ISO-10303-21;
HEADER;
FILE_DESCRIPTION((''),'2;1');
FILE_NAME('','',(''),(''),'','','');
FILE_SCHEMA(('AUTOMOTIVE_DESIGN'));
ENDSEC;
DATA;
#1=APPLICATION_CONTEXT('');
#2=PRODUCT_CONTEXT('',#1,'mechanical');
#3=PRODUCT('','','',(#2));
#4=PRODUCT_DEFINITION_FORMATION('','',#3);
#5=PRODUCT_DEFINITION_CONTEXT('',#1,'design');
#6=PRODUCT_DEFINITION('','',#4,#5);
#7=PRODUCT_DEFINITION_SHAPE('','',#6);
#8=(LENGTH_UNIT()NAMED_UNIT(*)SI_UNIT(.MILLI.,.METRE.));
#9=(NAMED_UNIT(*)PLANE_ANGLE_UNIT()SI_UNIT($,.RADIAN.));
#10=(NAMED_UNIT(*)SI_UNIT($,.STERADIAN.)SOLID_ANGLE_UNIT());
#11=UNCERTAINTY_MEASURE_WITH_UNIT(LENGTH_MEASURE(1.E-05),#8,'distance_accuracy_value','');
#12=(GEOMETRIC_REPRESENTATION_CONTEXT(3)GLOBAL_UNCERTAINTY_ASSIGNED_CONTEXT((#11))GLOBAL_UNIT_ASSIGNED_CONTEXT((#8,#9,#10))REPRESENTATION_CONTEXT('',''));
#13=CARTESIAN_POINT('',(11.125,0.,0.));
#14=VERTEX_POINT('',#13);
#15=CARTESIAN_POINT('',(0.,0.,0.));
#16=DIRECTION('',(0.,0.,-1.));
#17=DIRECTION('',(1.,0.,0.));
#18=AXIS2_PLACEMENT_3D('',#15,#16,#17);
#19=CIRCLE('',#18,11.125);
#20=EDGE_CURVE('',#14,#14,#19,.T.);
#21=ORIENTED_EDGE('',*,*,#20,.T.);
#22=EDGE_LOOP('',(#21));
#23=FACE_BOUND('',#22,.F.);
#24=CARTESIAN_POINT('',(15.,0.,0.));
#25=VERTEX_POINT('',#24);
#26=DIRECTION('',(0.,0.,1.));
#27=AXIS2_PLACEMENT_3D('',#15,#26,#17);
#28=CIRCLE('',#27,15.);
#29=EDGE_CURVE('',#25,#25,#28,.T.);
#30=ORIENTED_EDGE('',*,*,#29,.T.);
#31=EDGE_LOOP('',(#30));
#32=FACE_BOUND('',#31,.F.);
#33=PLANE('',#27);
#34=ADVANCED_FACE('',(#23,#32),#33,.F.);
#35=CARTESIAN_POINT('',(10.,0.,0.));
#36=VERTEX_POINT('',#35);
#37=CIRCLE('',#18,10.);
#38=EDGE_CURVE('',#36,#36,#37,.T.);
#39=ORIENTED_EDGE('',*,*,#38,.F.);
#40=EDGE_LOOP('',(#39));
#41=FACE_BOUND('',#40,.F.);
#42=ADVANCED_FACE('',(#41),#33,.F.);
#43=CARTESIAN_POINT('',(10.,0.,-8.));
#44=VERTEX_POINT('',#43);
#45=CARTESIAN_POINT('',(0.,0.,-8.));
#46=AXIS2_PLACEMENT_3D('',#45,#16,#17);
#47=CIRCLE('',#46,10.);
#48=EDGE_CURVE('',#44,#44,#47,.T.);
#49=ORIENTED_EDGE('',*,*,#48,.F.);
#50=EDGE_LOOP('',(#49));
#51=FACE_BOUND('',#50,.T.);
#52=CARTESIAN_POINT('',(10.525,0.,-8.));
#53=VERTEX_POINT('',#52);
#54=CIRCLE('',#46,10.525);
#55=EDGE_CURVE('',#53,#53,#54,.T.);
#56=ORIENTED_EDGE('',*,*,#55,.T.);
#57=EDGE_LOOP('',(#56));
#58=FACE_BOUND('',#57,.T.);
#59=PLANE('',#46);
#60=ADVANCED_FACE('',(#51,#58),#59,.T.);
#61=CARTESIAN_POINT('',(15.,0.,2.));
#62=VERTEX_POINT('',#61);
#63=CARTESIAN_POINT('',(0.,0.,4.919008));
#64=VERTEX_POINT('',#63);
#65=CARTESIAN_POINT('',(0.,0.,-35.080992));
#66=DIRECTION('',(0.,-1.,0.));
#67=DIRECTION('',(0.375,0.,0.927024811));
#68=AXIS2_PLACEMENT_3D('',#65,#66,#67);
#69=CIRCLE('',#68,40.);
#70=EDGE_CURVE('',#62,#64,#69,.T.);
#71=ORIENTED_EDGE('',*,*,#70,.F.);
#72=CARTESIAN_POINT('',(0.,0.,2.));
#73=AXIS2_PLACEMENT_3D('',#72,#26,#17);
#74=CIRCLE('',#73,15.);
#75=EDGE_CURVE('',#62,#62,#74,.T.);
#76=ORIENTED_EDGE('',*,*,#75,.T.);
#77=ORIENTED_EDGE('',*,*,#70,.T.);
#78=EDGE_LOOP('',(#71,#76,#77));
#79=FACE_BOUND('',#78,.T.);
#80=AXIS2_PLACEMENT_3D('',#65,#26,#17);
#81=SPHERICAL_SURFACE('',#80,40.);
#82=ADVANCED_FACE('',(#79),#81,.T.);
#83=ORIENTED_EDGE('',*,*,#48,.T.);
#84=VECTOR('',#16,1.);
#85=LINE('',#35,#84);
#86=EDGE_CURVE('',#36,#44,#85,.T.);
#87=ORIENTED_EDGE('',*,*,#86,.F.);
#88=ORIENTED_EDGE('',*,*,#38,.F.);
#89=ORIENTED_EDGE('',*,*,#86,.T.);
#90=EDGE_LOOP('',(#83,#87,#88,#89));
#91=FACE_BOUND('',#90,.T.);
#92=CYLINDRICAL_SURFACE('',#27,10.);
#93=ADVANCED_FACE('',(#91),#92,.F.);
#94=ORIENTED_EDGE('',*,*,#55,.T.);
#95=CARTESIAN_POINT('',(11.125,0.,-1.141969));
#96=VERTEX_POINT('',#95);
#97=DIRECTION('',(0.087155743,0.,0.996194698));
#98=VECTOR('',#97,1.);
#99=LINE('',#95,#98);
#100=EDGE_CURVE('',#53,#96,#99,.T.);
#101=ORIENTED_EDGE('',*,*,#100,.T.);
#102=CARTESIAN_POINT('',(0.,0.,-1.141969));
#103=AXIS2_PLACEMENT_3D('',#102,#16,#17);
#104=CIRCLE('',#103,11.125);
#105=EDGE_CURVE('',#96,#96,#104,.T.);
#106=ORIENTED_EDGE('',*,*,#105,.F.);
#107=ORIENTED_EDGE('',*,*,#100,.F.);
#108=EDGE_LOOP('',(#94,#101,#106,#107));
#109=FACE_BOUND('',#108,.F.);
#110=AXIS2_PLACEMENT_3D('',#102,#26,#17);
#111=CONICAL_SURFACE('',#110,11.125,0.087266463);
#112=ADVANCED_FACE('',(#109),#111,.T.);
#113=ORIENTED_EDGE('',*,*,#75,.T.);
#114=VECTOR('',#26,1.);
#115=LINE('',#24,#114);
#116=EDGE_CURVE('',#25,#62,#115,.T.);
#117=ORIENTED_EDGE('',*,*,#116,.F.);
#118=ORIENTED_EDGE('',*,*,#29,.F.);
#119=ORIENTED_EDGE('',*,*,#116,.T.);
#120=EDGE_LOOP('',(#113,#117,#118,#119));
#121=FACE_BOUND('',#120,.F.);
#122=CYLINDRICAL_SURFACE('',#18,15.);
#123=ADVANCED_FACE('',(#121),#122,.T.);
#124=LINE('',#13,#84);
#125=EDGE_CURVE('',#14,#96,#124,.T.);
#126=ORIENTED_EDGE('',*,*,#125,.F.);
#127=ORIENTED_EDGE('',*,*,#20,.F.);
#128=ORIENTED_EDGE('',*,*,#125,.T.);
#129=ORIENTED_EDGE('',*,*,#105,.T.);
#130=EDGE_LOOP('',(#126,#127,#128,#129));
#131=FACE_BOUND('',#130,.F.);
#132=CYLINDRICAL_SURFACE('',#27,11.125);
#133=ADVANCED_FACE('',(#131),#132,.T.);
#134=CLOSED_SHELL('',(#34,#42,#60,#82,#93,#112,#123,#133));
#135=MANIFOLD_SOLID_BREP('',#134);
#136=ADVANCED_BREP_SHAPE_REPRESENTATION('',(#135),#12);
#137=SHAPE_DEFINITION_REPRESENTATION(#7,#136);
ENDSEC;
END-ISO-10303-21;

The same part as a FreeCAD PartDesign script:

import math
import FreeCAD as App
import Part
import Sketcher
Q = App.Units.Quantity


def edges_at(feature, points):
    """Names of the edges that pass closest to the given points."""
    edges = feature.Shape.Edges
    near = lambda p: min(range(len(edges)), key=lambda i: edges[i].distToShape(Part.Vertex(*p))[0])
    return sorted({f"Edge{near(p) + 1}" for p in points})

doc = App.newDocument("Part")
body = doc.addObject("PartDesign::Body", "Body")

# Sketch on XY plane
sketch1 = body.newObject("Sketcher::SketchObject", "Sketch")
sketch1.AttachmentSupport = (doc.getObject("XY_Plane"), [""])
sketch1.MapMode = "FlatFace"
sketch1.addGeometry(Part.Circle(App.Vector(0, 0, 0), App.Vector(0, 0, 1), 15), False)
sketch1.addConstraint([
    Sketcher.Constraint("Coincident", 0, 3, -1, 1),
    Sketcher.Constraint("Diameter", 0, Q("30 mm")),
])
pad1 = body.newObject("PartDesign::Pad", "Pad")
pad1.Profile = sketch1
pad1.Length = 2

# Sketch on XY plane
sketch2 = body.newObject("Sketcher::SketchObject", "Sketch001")
sketch2.AttachmentSupport = (doc.getObject("XY_Plane"), [""])
sketch2.MapMode = "FlatFace"
sketch2.addGeometry([
    Part.Circle(App.Vector(0, 0, 0), App.Vector(0, 0, 1), 11.125),
    Part.Circle(App.Vector(0, 0, 0), App.Vector(0, 0, 1), 10),
], False)
sketch2.addConstraint([
    Sketcher.Constraint("Coincident", 0, 3, -1, 1),
    Sketcher.Constraint("Coincident", 1, 3, -1, 1),
    Sketcher.Constraint("Diameter", 1, Q("20 mm")),
    Sketcher.Constraint("Diameter", 0, Q("22.25 mm")),
])
pad2 = body.newObject("PartDesign::Pad", "Pad001")
pad2.Profile = sketch2
pad2.Length = 8
pad2.Reversed = True
doc.recompute()

chamfer = body.newObject("PartDesign::Chamfer", "Chamfer")
chamfer.Base = (pad2, edges_at(pad2, [(-11.125, 0, -8)]))
chamfer.ChamferType = "Two distances"
chamfer.Size = 0.6
chamfer.Size2 = 6.858031
chamfer.FlipDirection = True

# Sketch on XZ plane
sketch3 = body.newObject("Sketcher::SketchObject", "Sketch002")
sketch3.AttachmentSupport = (doc.getObject("XZ_Plane"), [""])
sketch3.MapMode = "FlatFace"
sketch3.addGeometry([
    Part.LineSegment(App.Vector(0, 4.919008, 0), App.Vector(0, 2, 0)),
    Part.LineSegment(App.Vector(0, 2, 0), App.Vector(15, 2, 0)),
    Part.ArcOfCircle(Part.Circle(App.Vector(0, -35.080992, 0), App.Vector(0, 0, 1), 40), math.radians(67.975687), math.radians(90)),
], False)
sketch3.addConstraint([
    Sketcher.Constraint("Coincident", 0, 2, 1, 1),
    Sketcher.Constraint("Coincident", 1, 2, 2, 1),
    Sketcher.Constraint("Coincident", 2, 2, 0, 1),
    Sketcher.Constraint("Vertical", 0),
    Sketcher.Constraint("Horizontal", 1),
    Sketcher.Constraint("PointOnObject", 2, 3, -2),
    Sketcher.Constraint("PointOnObject", 0, 2, -2),
    Sketcher.Constraint("Radius", 2, Q("40 mm")),
    Sketcher.Constraint("DistanceX", 1, 1, 1, 2, Q("15 mm")),
    Sketcher.Constraint("DistanceY", -1, 1, 0, 2, Q("2 mm")),
])
revolution = body.newObject("PartDesign::Revolution", "Revolution")
revolution.Profile = sketch3
revolution.ReferenceAxis = (sketch3, ["V_Axis"])
revolution.Angle = 360

doc.recompute()
